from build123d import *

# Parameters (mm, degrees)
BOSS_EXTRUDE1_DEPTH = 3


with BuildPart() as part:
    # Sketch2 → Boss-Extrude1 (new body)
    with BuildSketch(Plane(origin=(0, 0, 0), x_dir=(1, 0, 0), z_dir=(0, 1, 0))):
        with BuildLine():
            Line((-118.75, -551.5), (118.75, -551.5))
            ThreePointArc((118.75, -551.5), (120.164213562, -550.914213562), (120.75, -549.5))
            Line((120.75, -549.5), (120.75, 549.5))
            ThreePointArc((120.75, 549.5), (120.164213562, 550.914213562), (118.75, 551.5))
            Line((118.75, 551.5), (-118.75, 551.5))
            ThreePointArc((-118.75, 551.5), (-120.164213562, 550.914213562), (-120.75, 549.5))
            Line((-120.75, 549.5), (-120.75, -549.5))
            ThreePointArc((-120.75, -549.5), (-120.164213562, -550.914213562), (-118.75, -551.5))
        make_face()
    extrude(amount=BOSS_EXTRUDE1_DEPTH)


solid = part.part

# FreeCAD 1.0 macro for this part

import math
import FreeCAD as App
import Part
import Sketcher
from FreeCAD import Vector

doc = App.newDocument("Part")
body = doc.addObject("PartDesign::Body", "Body")

sketch1 = body.newObject("Sketcher::SketchObject", "Sketch")
sketch1.AttachmentSupport = (doc.getObject("XZ_Plane"), [""])
sketch1.MapMode = "FlatFace"
sketch1.addGeometry([
    Part.LineSegment(Vector(-118.75, 551.5, 0), Vector(118.75, 551.5, 0)),
    Part.ArcOfCircle(Part.Circle(Vector(118.75, 549.5, 0), Vector(0, 0, 1), 2), math.radians(0), math.radians(90)),
    Part.LineSegment(Vector(120.75, 549.5, 0), Vector(120.75, -549.5, 0)),
    Part.ArcOfCircle(Part.Circle(Vector(118.75, -549.5, 0), Vector(0, 0, 1), 2), math.radians(-90), math.radians(0)),
    Part.LineSegment(Vector(118.75, -551.5, 0), Vector(-118.75, -551.5, 0)),
    Part.ArcOfCircle(Part.Circle(Vector(-118.75, -549.5, 0), Vector(0, 0, 1), 2), math.radians(-180), math.radians(-90)),
    Part.LineSegment(Vector(-120.75, -549.5, 0), Vector(-120.75, 549.5, 0)),
    Part.ArcOfCircle(Part.Circle(Vector(-118.75, 549.5, 0), Vector(0, 0, 1), 2), math.radians(90), math.radians(180)),
], False)
sketch1.addConstraint([
    Sketcher.Constraint("Tangent", 0, 2, 1, 2),
    Sketcher.Constraint("Tangent", 1, 1, 2, 1),
    Sketcher.Constraint("Tangent", 2, 2, 3, 2),
    Sketcher.Constraint("Tangent", 3, 1, 4, 1),
    Sketcher.Constraint("Tangent", 4, 2, 5, 2),
    Sketcher.Constraint("Tangent", 5, 1, 6, 1),
    Sketcher.Constraint("Tangent", 6, 2, 7, 2),
    Sketcher.Constraint("Tangent", 7, 1, 0, 1),
    Sketcher.Constraint("Horizontal", 0),
    Sketcher.Constraint("Vertical", 2),
    Sketcher.Constraint("Horizontal", 4),
    Sketcher.Constraint("Vertical", 6),
    Sketcher.Constraint("Equal", 1, 3),
    Sketcher.Constraint("Equal", 3, 5),
    Sketcher.Constraint("Equal", 5, 7),
    Sketcher.Constraint("Symmetric", 1, 3, 5, 3, -1, 1),
    Sketcher.Constraint("Radius", 1, 2.0),
    Sketcher.Constraint("DistanceY", 2, 2, 2, 1, 1099.0),
    Sketcher.Constraint("DistanceX", 0, 1, 0, 2, 237.5),
])
pad1 = body.newObject("PartDesign::Pad", "Pad")
pad1.Profile = sketch1
pad1.Length = 3
pad1.Reversed = True

doc.recompute()
